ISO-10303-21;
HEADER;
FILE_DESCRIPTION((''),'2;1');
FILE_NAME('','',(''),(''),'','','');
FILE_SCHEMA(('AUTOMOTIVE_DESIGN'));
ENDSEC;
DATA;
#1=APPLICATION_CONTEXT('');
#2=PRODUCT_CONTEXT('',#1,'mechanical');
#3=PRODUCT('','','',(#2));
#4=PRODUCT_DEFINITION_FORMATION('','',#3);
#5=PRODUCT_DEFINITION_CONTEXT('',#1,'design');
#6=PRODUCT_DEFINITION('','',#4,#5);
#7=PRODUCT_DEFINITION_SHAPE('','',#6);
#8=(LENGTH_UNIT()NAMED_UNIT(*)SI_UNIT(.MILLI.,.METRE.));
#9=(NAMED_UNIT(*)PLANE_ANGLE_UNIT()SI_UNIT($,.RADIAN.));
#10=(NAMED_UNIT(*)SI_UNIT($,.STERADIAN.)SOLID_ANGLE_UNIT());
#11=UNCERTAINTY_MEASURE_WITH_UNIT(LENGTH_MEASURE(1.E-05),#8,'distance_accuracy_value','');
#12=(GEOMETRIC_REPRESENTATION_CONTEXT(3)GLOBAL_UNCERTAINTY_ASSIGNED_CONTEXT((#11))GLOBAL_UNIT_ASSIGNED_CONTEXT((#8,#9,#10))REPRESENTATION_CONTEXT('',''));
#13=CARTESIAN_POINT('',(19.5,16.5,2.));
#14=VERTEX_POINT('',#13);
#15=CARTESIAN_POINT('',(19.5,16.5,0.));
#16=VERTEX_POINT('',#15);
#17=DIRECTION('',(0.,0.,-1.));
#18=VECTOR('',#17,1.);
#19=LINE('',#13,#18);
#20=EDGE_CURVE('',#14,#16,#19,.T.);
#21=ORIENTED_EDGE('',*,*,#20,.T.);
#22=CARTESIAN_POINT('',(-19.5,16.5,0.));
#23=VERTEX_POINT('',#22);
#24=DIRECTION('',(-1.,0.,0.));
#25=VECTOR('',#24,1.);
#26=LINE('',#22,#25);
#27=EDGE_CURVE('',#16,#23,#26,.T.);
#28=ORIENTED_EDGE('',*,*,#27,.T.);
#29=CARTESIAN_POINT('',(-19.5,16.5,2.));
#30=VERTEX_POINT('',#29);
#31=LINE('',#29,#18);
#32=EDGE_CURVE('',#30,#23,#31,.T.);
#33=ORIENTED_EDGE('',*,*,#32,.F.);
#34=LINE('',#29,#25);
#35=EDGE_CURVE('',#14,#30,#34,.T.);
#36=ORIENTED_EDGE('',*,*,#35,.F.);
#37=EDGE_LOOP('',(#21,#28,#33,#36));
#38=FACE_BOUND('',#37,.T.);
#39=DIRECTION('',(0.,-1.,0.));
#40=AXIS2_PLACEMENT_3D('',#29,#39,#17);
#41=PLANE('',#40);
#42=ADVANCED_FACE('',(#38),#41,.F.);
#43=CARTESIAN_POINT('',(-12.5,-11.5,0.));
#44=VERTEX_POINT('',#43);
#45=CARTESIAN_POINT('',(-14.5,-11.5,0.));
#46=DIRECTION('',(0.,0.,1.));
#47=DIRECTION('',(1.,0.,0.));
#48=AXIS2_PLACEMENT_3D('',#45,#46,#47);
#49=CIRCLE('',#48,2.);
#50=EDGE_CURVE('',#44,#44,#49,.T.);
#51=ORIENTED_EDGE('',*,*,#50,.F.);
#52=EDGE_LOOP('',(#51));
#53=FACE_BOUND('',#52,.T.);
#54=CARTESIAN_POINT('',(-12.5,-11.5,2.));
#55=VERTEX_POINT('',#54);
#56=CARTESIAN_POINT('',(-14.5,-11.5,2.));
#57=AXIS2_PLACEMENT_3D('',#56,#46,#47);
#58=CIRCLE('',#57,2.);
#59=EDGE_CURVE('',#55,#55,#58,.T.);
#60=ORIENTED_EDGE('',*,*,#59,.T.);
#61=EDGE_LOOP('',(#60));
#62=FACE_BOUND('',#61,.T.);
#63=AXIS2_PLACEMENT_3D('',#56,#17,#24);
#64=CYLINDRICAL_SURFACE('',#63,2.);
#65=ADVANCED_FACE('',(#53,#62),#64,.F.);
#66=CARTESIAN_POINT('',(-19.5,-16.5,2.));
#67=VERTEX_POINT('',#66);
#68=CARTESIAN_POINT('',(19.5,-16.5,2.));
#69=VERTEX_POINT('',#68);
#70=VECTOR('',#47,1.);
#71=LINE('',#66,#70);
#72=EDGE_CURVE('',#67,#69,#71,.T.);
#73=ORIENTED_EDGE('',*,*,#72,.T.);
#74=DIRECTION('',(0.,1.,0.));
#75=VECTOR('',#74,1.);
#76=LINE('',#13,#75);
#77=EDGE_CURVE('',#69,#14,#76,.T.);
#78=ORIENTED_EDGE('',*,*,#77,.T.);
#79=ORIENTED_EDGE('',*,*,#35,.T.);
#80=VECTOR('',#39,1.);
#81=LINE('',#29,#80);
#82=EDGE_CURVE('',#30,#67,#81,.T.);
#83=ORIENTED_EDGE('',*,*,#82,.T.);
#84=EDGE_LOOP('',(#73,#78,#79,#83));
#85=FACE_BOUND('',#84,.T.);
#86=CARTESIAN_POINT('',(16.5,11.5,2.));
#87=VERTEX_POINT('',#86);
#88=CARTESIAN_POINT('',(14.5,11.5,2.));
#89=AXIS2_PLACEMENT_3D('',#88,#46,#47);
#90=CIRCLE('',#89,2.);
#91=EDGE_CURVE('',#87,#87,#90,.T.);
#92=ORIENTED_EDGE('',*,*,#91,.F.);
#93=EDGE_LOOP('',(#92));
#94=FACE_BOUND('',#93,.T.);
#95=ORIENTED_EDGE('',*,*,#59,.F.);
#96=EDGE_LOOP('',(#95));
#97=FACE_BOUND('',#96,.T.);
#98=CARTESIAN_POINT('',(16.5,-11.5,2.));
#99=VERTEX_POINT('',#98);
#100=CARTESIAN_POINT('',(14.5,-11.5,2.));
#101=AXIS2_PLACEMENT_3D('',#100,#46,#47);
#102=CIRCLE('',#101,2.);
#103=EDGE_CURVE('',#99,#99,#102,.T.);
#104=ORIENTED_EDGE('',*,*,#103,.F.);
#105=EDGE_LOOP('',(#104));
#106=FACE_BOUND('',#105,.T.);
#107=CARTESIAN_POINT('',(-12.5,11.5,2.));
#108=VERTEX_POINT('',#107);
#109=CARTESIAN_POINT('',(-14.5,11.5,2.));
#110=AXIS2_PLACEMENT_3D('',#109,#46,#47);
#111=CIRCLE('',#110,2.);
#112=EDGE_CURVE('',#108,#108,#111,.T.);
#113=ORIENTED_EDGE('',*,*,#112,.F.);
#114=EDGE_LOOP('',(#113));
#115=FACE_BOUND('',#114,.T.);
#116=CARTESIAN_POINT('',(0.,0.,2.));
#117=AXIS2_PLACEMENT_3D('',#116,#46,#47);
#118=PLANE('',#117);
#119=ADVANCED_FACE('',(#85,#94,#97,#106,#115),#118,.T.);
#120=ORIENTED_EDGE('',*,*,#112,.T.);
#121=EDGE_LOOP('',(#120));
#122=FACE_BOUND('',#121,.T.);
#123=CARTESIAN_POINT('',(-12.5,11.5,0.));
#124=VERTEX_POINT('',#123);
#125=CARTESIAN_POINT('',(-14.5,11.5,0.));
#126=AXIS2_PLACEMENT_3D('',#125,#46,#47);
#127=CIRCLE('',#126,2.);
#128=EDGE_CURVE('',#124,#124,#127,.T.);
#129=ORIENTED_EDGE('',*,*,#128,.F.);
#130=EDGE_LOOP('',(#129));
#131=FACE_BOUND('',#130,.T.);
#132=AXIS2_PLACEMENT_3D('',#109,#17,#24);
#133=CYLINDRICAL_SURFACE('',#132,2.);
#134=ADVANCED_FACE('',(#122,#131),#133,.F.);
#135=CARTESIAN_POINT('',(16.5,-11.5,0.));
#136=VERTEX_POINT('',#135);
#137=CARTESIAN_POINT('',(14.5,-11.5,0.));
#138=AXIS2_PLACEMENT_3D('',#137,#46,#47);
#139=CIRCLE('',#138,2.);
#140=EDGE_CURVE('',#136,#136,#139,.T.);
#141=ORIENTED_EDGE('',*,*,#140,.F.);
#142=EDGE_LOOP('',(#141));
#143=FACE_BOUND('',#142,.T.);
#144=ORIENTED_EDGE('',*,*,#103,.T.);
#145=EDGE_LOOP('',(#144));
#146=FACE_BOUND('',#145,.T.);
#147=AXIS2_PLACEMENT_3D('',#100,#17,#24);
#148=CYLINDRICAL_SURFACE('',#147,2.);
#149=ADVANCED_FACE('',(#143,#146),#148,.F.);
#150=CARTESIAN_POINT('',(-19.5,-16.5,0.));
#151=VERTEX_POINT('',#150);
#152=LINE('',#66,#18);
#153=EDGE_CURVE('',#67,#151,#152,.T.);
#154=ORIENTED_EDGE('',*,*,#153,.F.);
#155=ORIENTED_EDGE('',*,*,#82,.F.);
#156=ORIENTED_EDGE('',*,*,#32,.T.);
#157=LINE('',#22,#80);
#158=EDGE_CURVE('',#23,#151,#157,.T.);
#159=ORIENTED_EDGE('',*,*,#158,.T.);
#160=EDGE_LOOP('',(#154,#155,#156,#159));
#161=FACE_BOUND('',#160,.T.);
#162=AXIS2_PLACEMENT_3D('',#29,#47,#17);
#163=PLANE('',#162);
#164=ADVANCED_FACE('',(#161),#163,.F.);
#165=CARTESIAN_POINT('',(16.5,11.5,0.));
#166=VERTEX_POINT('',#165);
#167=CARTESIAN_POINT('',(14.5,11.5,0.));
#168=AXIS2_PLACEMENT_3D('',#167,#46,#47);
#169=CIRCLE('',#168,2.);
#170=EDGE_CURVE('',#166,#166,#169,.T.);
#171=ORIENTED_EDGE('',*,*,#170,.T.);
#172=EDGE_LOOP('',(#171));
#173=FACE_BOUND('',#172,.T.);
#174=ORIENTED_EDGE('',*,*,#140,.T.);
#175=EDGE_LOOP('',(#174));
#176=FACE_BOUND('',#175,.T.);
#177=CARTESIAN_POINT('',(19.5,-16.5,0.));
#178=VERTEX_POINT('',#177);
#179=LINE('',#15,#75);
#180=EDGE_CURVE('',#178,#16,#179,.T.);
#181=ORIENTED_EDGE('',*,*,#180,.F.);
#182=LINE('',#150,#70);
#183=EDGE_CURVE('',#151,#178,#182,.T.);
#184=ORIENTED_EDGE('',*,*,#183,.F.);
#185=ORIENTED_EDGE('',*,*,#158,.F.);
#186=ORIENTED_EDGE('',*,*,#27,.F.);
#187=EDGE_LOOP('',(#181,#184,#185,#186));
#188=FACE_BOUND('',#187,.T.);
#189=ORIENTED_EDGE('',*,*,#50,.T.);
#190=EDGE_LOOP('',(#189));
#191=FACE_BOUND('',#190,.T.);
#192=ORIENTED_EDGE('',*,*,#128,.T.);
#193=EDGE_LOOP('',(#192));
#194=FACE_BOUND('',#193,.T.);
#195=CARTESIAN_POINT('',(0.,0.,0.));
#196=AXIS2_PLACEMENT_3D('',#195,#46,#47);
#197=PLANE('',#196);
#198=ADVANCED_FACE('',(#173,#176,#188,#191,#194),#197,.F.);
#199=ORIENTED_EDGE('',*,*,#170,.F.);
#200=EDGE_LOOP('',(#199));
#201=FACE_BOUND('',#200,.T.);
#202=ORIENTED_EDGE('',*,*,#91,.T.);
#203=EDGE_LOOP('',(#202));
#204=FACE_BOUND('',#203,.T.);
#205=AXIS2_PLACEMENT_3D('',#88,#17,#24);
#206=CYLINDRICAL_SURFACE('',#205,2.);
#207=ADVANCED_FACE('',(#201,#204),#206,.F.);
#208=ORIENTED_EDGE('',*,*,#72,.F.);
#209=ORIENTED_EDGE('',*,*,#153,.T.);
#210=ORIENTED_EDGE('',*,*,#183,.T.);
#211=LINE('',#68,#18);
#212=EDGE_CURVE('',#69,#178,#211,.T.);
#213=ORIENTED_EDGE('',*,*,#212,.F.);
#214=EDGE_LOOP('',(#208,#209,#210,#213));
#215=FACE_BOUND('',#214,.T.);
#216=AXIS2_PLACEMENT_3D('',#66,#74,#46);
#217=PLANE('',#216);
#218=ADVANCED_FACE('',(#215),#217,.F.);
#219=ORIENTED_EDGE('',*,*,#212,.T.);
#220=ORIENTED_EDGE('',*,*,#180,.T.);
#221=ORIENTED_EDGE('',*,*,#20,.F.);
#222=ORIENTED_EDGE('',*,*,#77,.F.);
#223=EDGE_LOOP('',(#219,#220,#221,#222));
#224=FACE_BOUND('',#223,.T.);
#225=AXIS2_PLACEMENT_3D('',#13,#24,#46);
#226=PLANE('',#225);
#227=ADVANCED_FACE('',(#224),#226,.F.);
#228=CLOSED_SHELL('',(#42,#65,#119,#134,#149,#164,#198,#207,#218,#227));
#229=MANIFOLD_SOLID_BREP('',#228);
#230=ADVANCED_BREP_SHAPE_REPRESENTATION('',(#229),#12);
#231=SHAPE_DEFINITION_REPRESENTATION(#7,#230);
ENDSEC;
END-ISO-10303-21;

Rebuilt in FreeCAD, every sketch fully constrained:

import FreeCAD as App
import Part
import Sketcher
from FreeCAD import Vector
Q = App.Units.Quantity


def add_polygon(sketch, points):
    """Adds a closed chain of lines whose ends are joined by coincident constraints."""
    first, n = sketch.GeometryCount, len(points)
    for a, b in zip(points, points[1:] + points[:1]):
        sketch.addGeometry(Part.LineSegment(App.Vector(*a, 0), App.Vector(*b, 0)), False)
    for i in range(n):
        sketch.addConstraint(Sketcher.Constraint("Coincident", first + i, 2, first + (i + 1) % n, 1))

doc = App.newDocument("Part")
body = doc.addObject("PartDesign::Body", "Body")

# Sketch on XY plane
sketch1 = body.newObject("Sketcher::SketchObject", "Sketch")
sketch1.AttachmentSupport = (doc.getObject("XY_Plane"), [""])
sketch1.MapMode = "FlatFace"
add_polygon(sketch1, [(-19.5, 16.5), (-19.5, -16.5), (19.5, -16.5), (19.5, 16.5)])  # lines 0-3
sketch1.addGeometry(Part.Circle(Vector(-14.5, -11.5, 0), Vector(0, 0, 1), 2), False)  # 4
sketch1.addGeometry(Part.Circle(Vector(14.5, -11.5, 0), Vector(0, 0, 1), 2), False)  # 5
sketch1.addGeometry(Part.Circle(Vector(-14.5, 11.5, 0), Vector(0, 0, 1), 2), False)  # 6
sketch1.addGeometry(Part.Circle(Vector(14.5, 11.5, 0), Vector(0, 0, 1), 2), False)  # 7
sketch1.addConstraint([
    Sketcher.Constraint("Vertical", 0),
    Sketcher.Constraint("Horizontal", 1),
    Sketcher.Constraint("Vertical", 2),
    Sketcher.Constraint("Horizontal", 3),
    Sketcher.Constraint("Equal", 4, 5),
    Sketcher.Constraint("Equal", 5, 6),
    Sketcher.Constraint("Equal", 6, 7),
    Sketcher.Constraint("Symmetric", 5, 3, 6, 3, -1, 1),
    Sketcher.Constraint("Symmetric", 4, 3, 7, 3, -1, 1),
    Sketcher.Constraint("Symmetric", 0, 2, 2, 2, -1, 1),
    Sketcher.Constraint("Symmetric", 4, 3, 5, 3, -2),
    Sketcher.Constraint("Diameter", 4, Q("4 mm")),
    Sketcher.Constraint("DistanceX", 1, 1, 1, 2, Q("39 mm")),
    Sketcher.Constraint("DistanceY", 0, 2, 0, 1, Q("33 mm")),
    Sketcher.Constraint("DistanceX", 4, 3, 5, 3, Q("29 mm")),
    Sketcher.Constraint("DistanceY", 4, 3, 6, 3, Q("23 mm")),
])
pad1 = body.newObject("PartDesign::Pad", "Pad")
pad1.Profile = sketch1
pad1.Length = 2

doc.recompute()
